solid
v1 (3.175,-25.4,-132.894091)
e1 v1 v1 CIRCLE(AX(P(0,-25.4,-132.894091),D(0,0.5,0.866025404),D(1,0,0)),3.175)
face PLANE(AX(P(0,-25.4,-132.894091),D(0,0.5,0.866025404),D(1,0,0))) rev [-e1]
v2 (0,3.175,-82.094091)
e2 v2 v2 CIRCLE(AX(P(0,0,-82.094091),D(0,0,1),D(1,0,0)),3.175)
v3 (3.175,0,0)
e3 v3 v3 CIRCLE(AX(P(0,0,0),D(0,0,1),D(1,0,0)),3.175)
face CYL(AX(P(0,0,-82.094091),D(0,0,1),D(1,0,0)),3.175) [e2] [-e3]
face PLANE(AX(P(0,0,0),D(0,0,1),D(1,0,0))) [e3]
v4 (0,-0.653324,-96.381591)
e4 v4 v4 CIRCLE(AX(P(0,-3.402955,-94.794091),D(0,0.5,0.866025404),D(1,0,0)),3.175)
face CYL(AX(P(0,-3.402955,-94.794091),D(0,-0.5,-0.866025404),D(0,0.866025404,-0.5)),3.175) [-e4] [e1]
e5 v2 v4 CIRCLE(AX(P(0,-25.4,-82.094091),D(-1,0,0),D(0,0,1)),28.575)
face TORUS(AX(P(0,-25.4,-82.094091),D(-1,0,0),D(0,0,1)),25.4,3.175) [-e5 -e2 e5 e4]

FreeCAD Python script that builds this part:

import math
import FreeCAD as App
import Part
import Sketcher
from FreeCAD import Vector
Q = App.Units.Quantity

doc = App.newDocument("Part")
body = doc.addObject("PartDesign::Body", "Body")

# Sketch on XY plane
sketch1 = body.newObject("Sketcher::SketchObject", "Sketch")
sketch1.AttachmentSupport = (doc.getObject("XY_Plane"), [""])
sketch1.MapMode = "FlatFace"
sketch1.addGeometry(Part.Circle(Vector(0, 0, 0), Vector(0, 0, 1), 3.2), False)
sketch1.addConstraint(Sketcher.Constraint("Coincident", 0, 3, -1, 1))
sketch1.addConstraint(Sketcher.Constraint("Diameter", 0, Q("0.25 in")))

# Sketch on YZ plane
sketch2 = body.newObject("Sketcher::SketchObject", "Sketch001")
sketch2.AttachmentSupport = (doc.getObject("YZ_Plane"), [""])
sketch2.MapMode = "FlatFace"
sketch2.addGeometry(Part.LineSegment(Vector(0, 0, 0), Vector(0, -82, 0)), False)
sketch2.addGeometry(Part.ArcOfCircle(Part.Circle(Vector(-25, -82, 0), Vector(0, 0, 1), 25), math.radians(-30), math.radians(0)), False)
sketch2.addGeometry(Part.LineSegment(Vector(-3, -95, 0), Vector(-25, -133, 0)), False)
sketch2.addConstraint(Sketcher.Constraint("Tangent", 0, 2, 1, 2))
sketch2.addConstraint(Sketcher.Constraint("Tangent", 1, 1, 2, 1))
sketch2.addConstraint(Sketcher.Constraint("Vertical", 0))
sketch2.addConstraint(Sketcher.Constraint("Coincident", 0, 1, -1, 1))
sketch2.addConstraint(Sketcher.Constraint("Vertical", 1, 3, 2, 2))
sketch2.addConstraint(Sketcher.Constraint("Radius", 1, Q("1 in")))
sketch2.addConstraint(Sketcher.Constraint("Angle", 2, Q("-120 deg")))
sketch2.addConstraint(Sketcher.Constraint("DistanceY", 0, 2, 0, 1, 82.094091))
doc.recompute()

additivepipe = body.newObject("PartDesign::AdditivePipe", "AdditivePipe")
additivepipe.Profile = sketch1
additivepipe.Spine = (sketch2, ["Edge1", "Edge2", "Edge3"])

doc.recompute()
